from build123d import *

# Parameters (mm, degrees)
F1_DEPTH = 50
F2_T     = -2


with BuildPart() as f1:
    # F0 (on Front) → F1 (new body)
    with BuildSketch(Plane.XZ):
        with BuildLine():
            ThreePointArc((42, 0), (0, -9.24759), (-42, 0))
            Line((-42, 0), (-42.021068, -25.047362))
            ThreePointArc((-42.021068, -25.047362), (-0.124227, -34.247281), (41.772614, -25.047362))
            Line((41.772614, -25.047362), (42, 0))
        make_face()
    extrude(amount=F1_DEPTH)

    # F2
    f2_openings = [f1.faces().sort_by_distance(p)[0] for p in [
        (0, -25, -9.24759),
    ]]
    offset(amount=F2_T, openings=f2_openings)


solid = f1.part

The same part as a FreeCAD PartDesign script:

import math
import FreeCAD as App
import Part
import Sketcher
from FreeCAD import Vector


def faces_at(feature, points):
    """Names of the faces that lie closest to the given points."""
    faces = feature.Shape.Faces
    near = lambda p: min(range(len(faces)), key=lambda i: faces[i].distToShape(Part.Vertex(*p))[0])
    return sorted({f"Face{near(p) + 1}" for p in points})

doc = App.newDocument("Part")
body = doc.addObject("PartDesign::Body", "Body")

# Sketch on XZ plane
sketch1 = body.newObject("Sketcher::SketchObject", "Sketch")
sketch1.AttachmentSupport = (doc.getObject("XZ_Plane"), [""])
sketch1.MapMode = "FlatFace"
sketch1.addGeometry(Part.ArcOfCircle(Part.Circle(Vector(0, 91, 0), Vector(0, 0, 1), 100), math.radians(-115), math.radians(-65)), False)
sketch1.addGeometry(Part.LineSegment(Vector(-42, 0, 0), Vector(-42, -25, 0)), False)
sketch1.addGeometry(Part.ArcOfCircle(Part.Circle(Vector(0, 66, 0), Vector(0, 0, 1), 100), math.radians(-115), math.radians(-65)), False)
sketch1.addGeometry(Part.LineSegment(Vector(42, -25, 0), Vector(42, 0, 0)), False)
sketch1.addConstraint(Sketcher.Constraint("Coincident", 0, 1, 1, 1))
sketch1.addConstraint(Sketcher.Constraint("Coincident", 1, 2, 2, 1))
sketch1.addConstraint(Sketcher.Constraint("Coincident", 2, 2, 3, 1))
sketch1.addConstraint(Sketcher.Constraint("Coincident", 3, 2, 0, 2))
sketch1.addConstraint(Sketcher.Constraint("Symmetric", 0, 1, 3, 2, -1, 1))
sketch1.addConstraint(Sketcher.Constraint("PointOnObject", 0, 3, -2))
sketch1.addConstraint(Sketcher.Constraint("Horizontal", 1, 2, 2, 2))
sketch1.addConstraint(Sketcher.Constraint("Radius", 2, 100.0))
sketch1.addConstraint(Sketcher.Constraint("DistanceX", 0, 1, -1, 1, 42.0))
sketch1.addConstraint(Sketcher.Constraint("Radius", 0, 99.999996))
sketch1.addConstraint(Sketcher.Constraint("Distance", 1, 25.047371))
sketch1.addConstraint(Sketcher.Constraint("DistanceY", -1, 1, 2, 3, 65.752719))
sketch1.addConstraint(Sketcher.Constraint("DistanceX", 1, 2, 0, 1, 0.021068))
pad1 = body.newObject("PartDesign::Pad", "Pad")
pad1.Profile = sketch1
pad1.Length = 50
doc.recompute()

thickness = body.newObject("PartDesign::Thickness", "Thickness")
thickness.Base = (pad1, faces_at(pad1, [(0, -25, -9.248)]))
thickness.Value = 2
thickness.Reversed = True
thickness.Join = "Arc"

doc.recompute()
